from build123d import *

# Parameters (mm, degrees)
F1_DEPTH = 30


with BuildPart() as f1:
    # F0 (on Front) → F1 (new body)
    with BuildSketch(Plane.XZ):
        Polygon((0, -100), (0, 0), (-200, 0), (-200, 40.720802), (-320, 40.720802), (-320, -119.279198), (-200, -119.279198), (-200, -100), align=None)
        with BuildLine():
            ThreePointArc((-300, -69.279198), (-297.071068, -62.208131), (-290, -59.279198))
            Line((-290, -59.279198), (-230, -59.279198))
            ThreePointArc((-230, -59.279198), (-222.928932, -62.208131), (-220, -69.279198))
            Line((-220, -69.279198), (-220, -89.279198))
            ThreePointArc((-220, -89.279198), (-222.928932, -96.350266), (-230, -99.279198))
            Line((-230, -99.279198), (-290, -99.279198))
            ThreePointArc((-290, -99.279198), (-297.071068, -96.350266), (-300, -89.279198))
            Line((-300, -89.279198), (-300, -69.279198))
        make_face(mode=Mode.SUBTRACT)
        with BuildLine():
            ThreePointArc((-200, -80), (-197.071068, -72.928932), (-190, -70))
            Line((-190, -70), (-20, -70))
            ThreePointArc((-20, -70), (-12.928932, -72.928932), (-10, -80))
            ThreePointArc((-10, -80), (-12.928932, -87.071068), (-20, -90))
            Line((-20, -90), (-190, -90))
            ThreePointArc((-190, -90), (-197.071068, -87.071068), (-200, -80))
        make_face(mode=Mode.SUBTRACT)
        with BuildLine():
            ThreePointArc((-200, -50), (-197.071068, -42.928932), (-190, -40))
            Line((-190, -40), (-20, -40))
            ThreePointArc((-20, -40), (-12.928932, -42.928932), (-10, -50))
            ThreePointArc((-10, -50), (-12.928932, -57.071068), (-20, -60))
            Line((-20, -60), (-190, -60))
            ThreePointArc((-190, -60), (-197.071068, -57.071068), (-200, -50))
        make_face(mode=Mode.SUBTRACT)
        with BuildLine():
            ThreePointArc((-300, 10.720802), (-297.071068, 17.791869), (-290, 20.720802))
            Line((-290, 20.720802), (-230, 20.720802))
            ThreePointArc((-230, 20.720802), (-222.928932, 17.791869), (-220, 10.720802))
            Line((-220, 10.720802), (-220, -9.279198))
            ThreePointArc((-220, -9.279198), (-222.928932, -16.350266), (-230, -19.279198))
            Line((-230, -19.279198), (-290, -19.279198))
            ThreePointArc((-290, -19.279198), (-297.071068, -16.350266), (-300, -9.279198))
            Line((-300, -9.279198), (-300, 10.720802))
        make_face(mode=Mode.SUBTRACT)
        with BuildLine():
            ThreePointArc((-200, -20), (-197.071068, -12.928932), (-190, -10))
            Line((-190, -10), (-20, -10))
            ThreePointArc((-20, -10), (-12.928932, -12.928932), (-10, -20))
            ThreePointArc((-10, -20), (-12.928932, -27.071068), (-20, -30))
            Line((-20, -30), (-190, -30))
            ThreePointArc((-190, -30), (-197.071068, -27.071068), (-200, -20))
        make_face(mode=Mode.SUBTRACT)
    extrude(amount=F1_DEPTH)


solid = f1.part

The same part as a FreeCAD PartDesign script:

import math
import FreeCAD as App
import Part
import Sketcher


def add_polygon(sketch, points):
    """Adds a closed chain of lines whose ends are joined by coincident constraints."""
    first, n = sketch.GeometryCount, len(points)
    for a, b in zip(points, points[1:] + points[:1]):
        sketch.addGeometry(Part.LineSegment(App.Vector(*a, 0), App.Vector(*b, 0)), False)
    for i in range(n):
        sketch.addConstraint(Sketcher.Constraint("Coincident", first + i, 2, first + (i + 1) % n, 1))

doc = App.newDocument("Part")
body = doc.addObject("PartDesign::Body", "Body")

sketch1 = body.newObject("Sketcher::SketchObject", "Sketch")
sketch1.AttachmentSupport = (doc.getObject("XZ_Plane"), [""])
sketch1.MapMode = "FlatFace"
add_polygon(sketch1, [(0, -100), (0, 0), (-200, 0), (-200, 40.720802), (-320, 40.720802), (-320, -119.279198), (-200, -119.279198), (-200, -100)])
sketch1.addGeometry(Part.LineSegment(App.Vector(-300, -89.279198, 0), App.Vector(-300, -69.279198, 0)), False)
sketch1.addGeometry(Part.ArcOfCircle(Part.Circle(App.Vector(-289.999999, -69.279199, 0), App.Vector(0, 0, 1), 10.000001), math.radians(90.000006), math.radians(179.999994)), False)
sketch1.addGeometry(Part.LineSegment(App.Vector(-290, -59.279198, 0), App.Vector(-230, -59.279198, 0)), False)
sketch1.addGeometry(Part.ArcOfCircle(Part.Circle(App.Vector(-230.000001, -69.279199, 0), App.Vector(0, 0, 1), 10.000001), math.radians(0.000006), math.radians(89.999994)), False)
sketch1.addGeometry(Part.LineSegment(App.Vector(-220, -69.279198, 0), App.Vector(-220, -89.279198, 0)), False)
sketch1.addGeometry(Part.ArcOfCircle(Part.Circle(App.Vector(-229.999999, -89.279199, 0), App.Vector(0, 0, 1), 9.999999), math.radians(-90.000004), math.radians(0.000004)), False)
sketch1.addGeometry(Part.LineSegment(App.Vector(-230, -99.279198, 0), App.Vector(-290, -99.279198, 0)), False)
sketch1.addGeometry(Part.ArcOfCircle(Part.Circle(App.Vector(-290.000001, -89.279199, 0), App.Vector(0, 0, 1), 9.999999), math.radians(179.999996), math.radians(270.000004)), False)
sketch1.addGeometry(Part.ArcOfCircle(Part.Circle(App.Vector(-190.000001, -80.000001, 0), App.Vector(0, 0, 1), 9.999999), math.radians(179.999996), math.radians(270.000004)), False)
sketch1.addGeometry(Part.ArcOfCircle(Part.Circle(App.Vector(-190.000001, -79.999999, 0), App.Vector(0, 0, 1), 9.999999), math.radians(89.999996), math.radians(180.000004)), False)
sketch1.addGeometry(Part.LineSegment(App.Vector(-190, -70, 0), App.Vector(-20, -70, 0)), False)
sketch1.addGeometry(Part.ArcOfCircle(Part.Circle(App.Vector(-19.999999, -79.999999, 0), App.Vector(0, 0, 1), 9.999999), math.radians(-0.000004), math.radians(90.000004)), False)
sketch1.addGeometry(Part.ArcOfCircle(Part.Circle(App.Vector(-19.999999, -80.000001, 0), App.Vector(0, 0, 1), 9.999999), math.radians(-90.000004), math.radians(0.000004)), False)
sketch1.addGeometry(Part.LineSegment(App.Vector(-20, -90, 0), App.Vector(-190, -90, 0)), False)
sketch1.addGeometry(Part.ArcOfCircle(Part.Circle(App.Vector(-190.000001, -50.000001, 0), App.Vector(0, 0, 1), 9.999999), math.radians(179.999996), math.radians(270.000004)), False)
sketch1.addGeometry(Part.ArcOfCircle(Part.Circle(App.Vector(-190.000001, -49.999999, 0), App.Vector(0, 0, 1), 9.999999), math.radians(89.999996), math.radians(180.000004)), False)
sketch1.addGeometry(Part.LineSegment(App.Vector(-190, -40, 0), App.Vector(-20, -40, 0)), False)
sketch1.addGeometry(Part.ArcOfCircle(Part.Circle(App.Vector(-19.999999, -49.999999, 0), App.Vector(0, 0, 1), 9.999999), math.radians(-0.000004), math.radians(90.000004)), False)
sketch1.addGeometry(Part.ArcOfCircle(Part.Circle(App.Vector(-19.999999, -50.000001, 0), App.Vector(0, 0, 1), 9.999999), math.radians(-90.000004), math.radians(0.000004)), False)
sketch1.addGeometry(Part.LineSegment(App.Vector(-20, -60, 0), App.Vector(-190, -60, 0)), False)
sketch1.addGeometry(Part.LineSegment(App.Vector(-300, -9.279198, 0), App.Vector(-300, 10.720802, 0)), False)
sketch1.addGeometry(Part.ArcOfCircle(Part.Circle(App.Vector(-289.999999, 10.720801, 0), App.Vector(0, 0, 1), 10.000001), math.radians(90.000006), math.radians(179.999994)), False)
sketch1.addGeometry(Part.LineSegment(App.Vector(-290, 20.720802, 0), App.Vector(-230, 20.720802, 0)), False)
sketch1.addGeometry(Part.ArcOfCircle(Part.Circle(App.Vector(-230.000001, 10.720801, 0), App.Vector(0, 0, 1), 10.000001), math.radians(0.000006), math.radians(89.999994)), False)
sketch1.addGeometry(Part.LineSegment(App.Vector(-220, 10.720802, 0), App.Vector(-220, -9.279198, 0)), False)
sketch1.addGeometry(Part.ArcOfCircle(Part.Circle(App.Vector(-229.999999, -9.279199, 0), App.Vector(0, 0, 1), 9.999999), math.radians(-90.000004), math.radians(0.000004)), False)
sketch1.addGeometry(Part.LineSegment(App.Vector(-230, -19.279198, 0), App.Vector(-290, -19.279198, 0)), False)
sketch1.addGeometry(Part.ArcOfCircle(Part.Circle(App.Vector(-290.000001, -9.279199, 0), App.Vector(0, 0, 1), 9.999999), math.radians(179.999996), math.radians(270.000004)), False)
sketch1.addGeometry(Part.ArcOfCircle(Part.Circle(App.Vector(-190.000001, -20.000001, 0), App.Vector(0, 0, 1), 9.999999), math.radians(179.999996), math.radians(270.000004)), False)
sketch1.addGeometry(Part.ArcOfCircle(Part.Circle(App.Vector(-190.000001, -19.999999, 0), App.Vector(0, 0, 1), 9.999999), math.radians(89.999996), math.radians(180.000004)), False)
sketch1.addGeometry(Part.LineSegment(App.Vector(-190, -10, 0), App.Vector(-20, -10, 0)), False)
sketch1.addGeometry(Part.ArcOfCircle(Part.Circle(App.Vector(-19.999999, -19.999999, 0), App.Vector(0, 0, 1), 9.999999), math.radians(-0.000004), math.radians(90.000004)), False)
sketch1.addGeometry(Part.ArcOfCircle(Part.Circle(App.Vector(-19.999999, -20.000001, 0), App.Vector(0, 0, 1), 9.999999), math.radians(-90.000004), math.radians(0.000004)), False)
sketch1.addGeometry(Part.LineSegment(App.Vector(-20, -30, 0), App.Vector(-190, -30, 0)), False)
sketch1.addConstraint([
    Sketcher.Constraint("Tangent", 8, 2, 9, 2),
    Sketcher.Constraint("Tangent", 9, 1, 10, 1),
    Sketcher.Constraint("Tangent", 10, 2, 11, 2),
    Sketcher.Constraint("Tangent", 11, 1, 12, 1),
    Sketcher.Constraint("Tangent", 12, 2, 13, 2),
    Sketcher.Constraint("Tangent", 13, 1, 14, 1),
    Sketcher.Constraint("Tangent", 14, 2, 15, 2),
    Sketcher.Constraint("Tangent", 15, 1, 8, 1),
    Sketcher.Constraint("Tangent", 16, 1, 17, 2),
    Sketcher.Constraint("Tangent", 17, 1, 18, 1),
    Sketcher.Constraint("Tangent", 18, 2, 19, 2),
    Sketcher.Constraint("Tangent", 19, 1, 20, 2),
    Sketcher.Constraint("Tangent", 20, 1, 21, 1),
    Sketcher.Constraint("Tangent", 21, 2, 16, 2),
    Sketcher.Constraint("Tangent", 22, 1, 23, 2),
    Sketcher.Constraint("Tangent", 23, 1, 24, 1),
    Sketcher.Constraint("Tangent", 24, 2, 25, 2),
    Sketcher.Constraint("Tangent", 25, 1, 26, 2),
    Sketcher.Constraint("Tangent", 26, 1, 27, 1),
    Sketcher.Constraint("Tangent", 27, 2, 22, 2),
    Sketcher.Constraint("Tangent", 28, 2, 29, 2),
    Sketcher.Constraint("Tangent", 29, 1, 30, 1),
    Sketcher.Constraint("Tangent", 30, 2, 31, 2),
    Sketcher.Constraint("Tangent", 31, 1, 32, 1),
    Sketcher.Constraint("Tangent", 32, 2, 33, 2),
    Sketcher.Constraint("Tangent", 33, 1, 34, 1),
    Sketcher.Constraint("Tangent", 34, 2, 35, 2),
    Sketcher.Constraint("Tangent", 35, 1, 28, 1),
    Sketcher.Constraint("Tangent", 36, 1, 37, 2),
    Sketcher.Constraint("Tangent", 37, 1, 38, 1),
    Sketcher.Constraint("Tangent", 38, 2, 39, 2),
    Sketcher.Constraint("Tangent", 39, 1, 40, 2),
    Sketcher.Constraint("Tangent", 40, 1, 41, 1),
    Sketcher.Constraint("Tangent", 41, 2, 36, 2),
    Sketcher.Constraint("Vertical", 0),
    Sketcher.Constraint("Horizontal", 1),
    Sketcher.Constraint("Vertical", 2),
    Sketcher.Constraint("Horizontal", 3),
    Sketcher.Constraint("Vertical", 4),
    Sketcher.Constraint("Horizontal", 5),
    Sketcher.Constraint("Vertical", 6),
    Sketcher.Constraint("Horizontal", 7),
    Sketcher.Constraint("Vertical", 8),
    Sketcher.Constraint("Horizontal", 10),
    Sketcher.Constraint("Vertical", 12),
    Sketcher.Constraint("Horizontal", 14),
    Sketcher.Constraint("Horizontal", 18),
    Sketcher.Constraint("Horizontal", 21),
    Sketcher.Constraint("Horizontal", 24),
    Sketcher.Constraint("Horizontal", 27),
    Sketcher.Constraint("Vertical", 28),
    Sketcher.Constraint("Horizontal", 30),
    Sketcher.Constraint("Vertical", 32),
    Sketcher.Constraint("Horizontal", 34),
    Sketcher.Constraint("Horizontal", 38),
    Sketcher.Constraint("Horizontal", 41),
    Sketcher.Constraint("Coincident", 0, 2, -1, 1),
    Sketcher.Constraint("Equal", 9, 11),
    Sketcher.Constraint("Equal", 11, 13),
    Sketcher.Constraint("Equal", 13, 15),
    Sketcher.Constraint("Equal", 15, 16),
    Sketcher.Constraint("Equal", 16, 17),
    Sketcher.Constraint("Equal", 17, 19),
    Sketcher.Constraint("Equal", 20, 22),
    Sketcher.Constraint("Equal", 22, 23),
    Sketcher.Constraint("Equal", 23, 25),
    Sketcher.Constraint("Equal", 26, 29),
    Sketcher.Constraint("Equal", 29, 31),
    Sketcher.Constraint("Equal", 31, 33),
    Sketcher.Constraint("Equal", 33, 35),
    Sketcher.Constraint("Equal", 35, 36),
    Sketcher.Constraint("Equal", 36, 37),
    Sketcher.Constraint("Equal", 37, 39),
    Sketcher.Constraint("Horizontal", 20, 3, 16, 1),
    Sketcher.Constraint("Horizontal", 16, 1, 19, 1),
    Sketcher.Constraint("Horizontal", 26, 3, 22, 1),
    Sketcher.Constraint("Horizontal", 22, 1, 25, 1),
    Sketcher.Constraint("Horizontal", 40, 3, 36, 1),
    Sketcher.Constraint("Horizontal", 36, 1, 39, 1),
    Sketcher.Constraint("Vertical", 17, 3, 22, 3),
    Sketcher.Constraint("Vertical", 20, 3, 25, 3),
    Sketcher.Constraint("Vertical", 15, 3, 29, 3),
    Sketcher.Constraint("Vertical", 13, 3, 31, 3),
    Sketcher.Constraint("Vertical", 23, 3, 36, 3),
    Sketcher.Constraint("Vertical", 26, 3, 39, 3),
    Sketcher.Constraint("Vertical", 2, 2, 5, 2),
    Sketcher.Constraint("Vertical", 6, 2, 16, 1),
    Sketcher.Constraint("Equal", 12, 28),
    Sketcher.Constraint("Radius", 9, 10.000001),
    Sketcher.Constraint("DistanceX", 1, 2, 1, 1, 200.0),
    Sketcher.Constraint("DistanceX", 3, 2, 3, 1, 120.0),
    Sketcher.Constraint("DistanceX", 10, 1, 10, 2, 60.0),
    Sketcher.Constraint("DistanceX", 18, 1, 18, 2, 170.0),
    Sketcher.Constraint("DistanceY", 0, 1, 0, 2, 100.0),
    Sketcher.Constraint("DistanceY", 4, 2, 4, 1, 160.0),
    Sketcher.Constraint("DistanceY", 8, 1, 8, 2, 20.0),
    Sketcher.Constraint("DistanceX", 9, 3, -1, 1, 289.999999),
    Sketcher.Constraint("DistanceY", 16, 3, -1, 1, 80.000001),
    Sketcher.Constraint("DistanceY", 22, 3, -1, 1, 50.000001),
    Sketcher.Constraint("DistanceY", 36, 3, -1, 1, 20.000001),
    Sketcher.Constraint("DistanceY", 9, 3, -1, 1, 69.279199),
    Sketcher.Constraint("DistanceY", -1, 1, 29, 3, 10.720801),
    Sketcher.Constraint("DistanceY", 2, 1, 2, 2, 40.720802),
])
pad1 = body.newObject("PartDesign::Pad", "Pad")
pad1.Profile = sketch1
pad1.Length = 30

doc.recompute()
